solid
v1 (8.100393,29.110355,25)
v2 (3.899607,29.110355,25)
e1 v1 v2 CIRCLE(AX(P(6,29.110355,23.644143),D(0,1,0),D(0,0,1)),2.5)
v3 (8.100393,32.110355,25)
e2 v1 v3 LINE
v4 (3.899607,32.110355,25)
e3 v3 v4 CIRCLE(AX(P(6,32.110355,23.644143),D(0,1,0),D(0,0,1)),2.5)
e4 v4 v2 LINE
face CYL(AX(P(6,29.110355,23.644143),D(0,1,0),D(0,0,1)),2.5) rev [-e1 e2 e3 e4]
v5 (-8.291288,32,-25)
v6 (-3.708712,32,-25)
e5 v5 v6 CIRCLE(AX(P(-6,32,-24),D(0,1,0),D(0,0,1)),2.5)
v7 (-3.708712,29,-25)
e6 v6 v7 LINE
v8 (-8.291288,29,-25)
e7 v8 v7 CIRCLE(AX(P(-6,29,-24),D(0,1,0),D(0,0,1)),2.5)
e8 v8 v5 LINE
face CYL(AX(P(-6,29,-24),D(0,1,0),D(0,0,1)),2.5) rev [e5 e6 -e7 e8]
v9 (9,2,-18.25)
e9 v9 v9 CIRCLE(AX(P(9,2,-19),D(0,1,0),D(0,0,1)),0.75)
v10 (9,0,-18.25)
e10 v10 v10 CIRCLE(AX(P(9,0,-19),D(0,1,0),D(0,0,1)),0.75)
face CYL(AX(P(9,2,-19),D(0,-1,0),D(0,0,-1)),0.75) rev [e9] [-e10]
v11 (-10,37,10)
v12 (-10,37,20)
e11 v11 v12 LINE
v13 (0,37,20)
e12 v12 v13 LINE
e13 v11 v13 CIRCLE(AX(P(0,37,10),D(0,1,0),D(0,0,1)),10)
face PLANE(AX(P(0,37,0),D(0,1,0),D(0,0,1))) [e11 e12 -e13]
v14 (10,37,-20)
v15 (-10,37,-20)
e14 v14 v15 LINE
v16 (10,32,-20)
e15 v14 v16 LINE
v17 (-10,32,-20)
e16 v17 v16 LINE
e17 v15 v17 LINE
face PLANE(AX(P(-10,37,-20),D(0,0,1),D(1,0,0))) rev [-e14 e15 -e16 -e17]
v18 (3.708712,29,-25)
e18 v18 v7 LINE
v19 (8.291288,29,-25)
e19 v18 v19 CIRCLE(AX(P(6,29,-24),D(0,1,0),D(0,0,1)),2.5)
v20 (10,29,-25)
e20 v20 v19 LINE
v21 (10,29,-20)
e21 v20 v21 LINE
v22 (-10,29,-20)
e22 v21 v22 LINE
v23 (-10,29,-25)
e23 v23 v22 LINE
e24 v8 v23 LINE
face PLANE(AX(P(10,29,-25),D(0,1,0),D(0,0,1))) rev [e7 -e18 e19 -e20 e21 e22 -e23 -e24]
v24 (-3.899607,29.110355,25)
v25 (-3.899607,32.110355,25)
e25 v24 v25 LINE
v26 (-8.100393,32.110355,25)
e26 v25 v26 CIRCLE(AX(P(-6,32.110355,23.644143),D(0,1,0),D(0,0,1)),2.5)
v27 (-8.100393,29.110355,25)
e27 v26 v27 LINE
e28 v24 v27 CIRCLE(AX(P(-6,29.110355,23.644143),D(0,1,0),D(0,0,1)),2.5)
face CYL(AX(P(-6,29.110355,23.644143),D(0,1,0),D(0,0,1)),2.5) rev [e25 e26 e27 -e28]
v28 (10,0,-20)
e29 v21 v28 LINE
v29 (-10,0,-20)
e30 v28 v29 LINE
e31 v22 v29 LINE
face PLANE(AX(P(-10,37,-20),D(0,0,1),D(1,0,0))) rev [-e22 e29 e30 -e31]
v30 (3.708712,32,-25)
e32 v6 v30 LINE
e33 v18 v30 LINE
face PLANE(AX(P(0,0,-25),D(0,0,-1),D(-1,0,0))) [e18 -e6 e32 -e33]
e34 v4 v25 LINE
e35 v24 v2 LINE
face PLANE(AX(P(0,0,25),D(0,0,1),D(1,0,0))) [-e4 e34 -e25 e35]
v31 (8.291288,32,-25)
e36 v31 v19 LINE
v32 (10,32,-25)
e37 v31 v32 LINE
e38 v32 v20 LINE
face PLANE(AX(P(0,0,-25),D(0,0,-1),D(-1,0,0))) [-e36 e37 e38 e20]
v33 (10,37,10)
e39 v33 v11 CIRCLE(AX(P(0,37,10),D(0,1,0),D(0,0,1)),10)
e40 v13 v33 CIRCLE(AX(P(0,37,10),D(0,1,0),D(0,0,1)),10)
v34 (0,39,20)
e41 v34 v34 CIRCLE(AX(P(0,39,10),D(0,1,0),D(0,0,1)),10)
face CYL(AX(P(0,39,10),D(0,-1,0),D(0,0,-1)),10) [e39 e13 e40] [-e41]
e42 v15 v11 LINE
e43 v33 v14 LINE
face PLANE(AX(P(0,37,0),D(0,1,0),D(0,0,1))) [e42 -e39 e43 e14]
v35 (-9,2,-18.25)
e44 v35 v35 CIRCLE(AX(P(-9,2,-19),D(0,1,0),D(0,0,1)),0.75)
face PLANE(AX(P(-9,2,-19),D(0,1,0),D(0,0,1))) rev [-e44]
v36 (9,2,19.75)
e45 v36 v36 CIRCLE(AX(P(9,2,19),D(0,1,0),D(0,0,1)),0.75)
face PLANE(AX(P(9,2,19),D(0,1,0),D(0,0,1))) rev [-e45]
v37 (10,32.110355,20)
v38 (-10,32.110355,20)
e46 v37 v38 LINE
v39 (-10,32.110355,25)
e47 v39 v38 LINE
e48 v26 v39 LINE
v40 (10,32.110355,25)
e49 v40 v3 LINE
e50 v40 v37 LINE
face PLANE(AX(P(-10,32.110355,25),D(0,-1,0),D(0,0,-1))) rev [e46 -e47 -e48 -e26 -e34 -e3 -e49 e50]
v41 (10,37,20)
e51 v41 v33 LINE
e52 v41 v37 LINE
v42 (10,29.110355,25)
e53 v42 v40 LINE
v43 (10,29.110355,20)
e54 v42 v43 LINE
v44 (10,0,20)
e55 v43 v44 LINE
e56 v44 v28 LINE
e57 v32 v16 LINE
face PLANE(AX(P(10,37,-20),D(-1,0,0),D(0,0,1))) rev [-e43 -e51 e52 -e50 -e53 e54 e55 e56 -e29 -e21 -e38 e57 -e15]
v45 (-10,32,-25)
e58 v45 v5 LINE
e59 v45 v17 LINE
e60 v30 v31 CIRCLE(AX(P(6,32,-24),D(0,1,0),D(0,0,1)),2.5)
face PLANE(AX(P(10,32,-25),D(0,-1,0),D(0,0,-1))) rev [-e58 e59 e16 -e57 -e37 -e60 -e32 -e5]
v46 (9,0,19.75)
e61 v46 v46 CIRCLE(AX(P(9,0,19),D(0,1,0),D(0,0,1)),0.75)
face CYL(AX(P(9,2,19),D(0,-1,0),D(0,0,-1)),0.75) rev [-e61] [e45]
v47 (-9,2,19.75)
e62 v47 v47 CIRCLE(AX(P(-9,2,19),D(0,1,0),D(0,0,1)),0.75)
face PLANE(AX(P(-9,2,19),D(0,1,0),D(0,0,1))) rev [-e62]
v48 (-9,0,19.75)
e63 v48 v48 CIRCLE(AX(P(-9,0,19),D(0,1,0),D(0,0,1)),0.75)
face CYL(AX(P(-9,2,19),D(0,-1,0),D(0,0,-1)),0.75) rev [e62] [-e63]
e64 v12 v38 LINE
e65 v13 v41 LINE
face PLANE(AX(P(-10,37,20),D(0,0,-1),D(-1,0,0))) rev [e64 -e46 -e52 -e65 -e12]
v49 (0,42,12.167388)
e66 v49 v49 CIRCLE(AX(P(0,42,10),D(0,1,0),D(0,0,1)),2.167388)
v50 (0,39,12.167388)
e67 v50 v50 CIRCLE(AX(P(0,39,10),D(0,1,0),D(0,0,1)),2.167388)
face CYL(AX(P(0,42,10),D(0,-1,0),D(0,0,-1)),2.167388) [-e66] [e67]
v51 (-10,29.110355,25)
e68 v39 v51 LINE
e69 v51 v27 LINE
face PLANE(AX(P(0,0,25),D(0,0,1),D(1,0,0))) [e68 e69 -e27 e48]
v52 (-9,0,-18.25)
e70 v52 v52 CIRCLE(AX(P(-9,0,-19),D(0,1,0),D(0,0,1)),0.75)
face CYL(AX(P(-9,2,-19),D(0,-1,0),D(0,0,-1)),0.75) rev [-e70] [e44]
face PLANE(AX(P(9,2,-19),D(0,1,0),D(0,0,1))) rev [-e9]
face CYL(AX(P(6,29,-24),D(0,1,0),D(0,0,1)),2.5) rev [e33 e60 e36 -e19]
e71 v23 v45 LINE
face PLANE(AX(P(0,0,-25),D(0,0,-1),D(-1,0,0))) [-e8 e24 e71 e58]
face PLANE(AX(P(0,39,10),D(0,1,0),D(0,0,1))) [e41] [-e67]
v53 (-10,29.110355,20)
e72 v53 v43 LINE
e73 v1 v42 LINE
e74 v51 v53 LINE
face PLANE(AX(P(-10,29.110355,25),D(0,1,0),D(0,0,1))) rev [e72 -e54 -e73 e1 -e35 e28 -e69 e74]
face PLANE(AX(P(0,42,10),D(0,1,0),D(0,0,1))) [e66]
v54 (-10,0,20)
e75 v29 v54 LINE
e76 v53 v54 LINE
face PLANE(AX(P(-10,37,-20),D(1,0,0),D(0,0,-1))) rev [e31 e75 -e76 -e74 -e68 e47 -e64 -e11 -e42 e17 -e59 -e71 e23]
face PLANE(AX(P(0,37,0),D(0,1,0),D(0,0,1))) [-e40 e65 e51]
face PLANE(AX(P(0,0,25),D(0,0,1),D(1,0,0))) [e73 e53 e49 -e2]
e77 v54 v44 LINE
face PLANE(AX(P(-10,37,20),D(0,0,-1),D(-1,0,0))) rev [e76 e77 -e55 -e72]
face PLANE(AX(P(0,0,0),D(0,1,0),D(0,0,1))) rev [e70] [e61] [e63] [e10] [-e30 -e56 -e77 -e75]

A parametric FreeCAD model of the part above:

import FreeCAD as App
import Part
import Sketcher
from FreeCAD import Vector

doc = App.newDocument("Part")
body = doc.addObject("PartDesign::Body", "Body")

# Sketch on XZ plane
sketch1 = doc.addObject("Sketcher::SketchObject", "Sketch")
body.addObject(sketch1)
sketch1.AttachmentSupport = (doc.XZ_Plane, [""])
sketch1.MapMode = "FlatFace"
sketch1.addGeometry(Part.LineSegment(Vector(-10, -20, 0), Vector(-10, 20, 0)), False)
sketch1.addGeometry(Part.LineSegment(Vector(-10, 20, 0), Vector(10, 20, 0)), False)
sketch1.addGeometry(Part.LineSegment(Vector(10, 20, 0), Vector(10, -20, 0)), False)
sketch1.addGeometry(Part.LineSegment(Vector(10, -20, 0), Vector(-10, -20, 0)), False)
sketch1.addConstraint(Sketcher.Constraint("Coincident", 0, 2, 1, 1))
sketch1.addConstraint(Sketcher.Constraint("Coincident", 1, 2, 2, 1))
sketch1.addConstraint(Sketcher.Constraint("Coincident", 2, 2, 3, 1))
sketch1.addConstraint(Sketcher.Constraint("Coincident", 3, 2, 0, 1))
sketch1.addConstraint(Sketcher.Constraint("Vertical", 0))
sketch1.addConstraint(Sketcher.Constraint("Horizontal", 1))
sketch1.addConstraint(Sketcher.Constraint("Vertical", 2))
sketch1.addConstraint(Sketcher.Constraint("Horizontal", 3))
sketch1.addConstraint(Sketcher.Constraint("Symmetric", 0, 2, 2, 2, -1, 1))
sketch1.addConstraint(Sketcher.Constraint("DistanceX", 1, 1, 1, 2, 20.0))
sketch1.addConstraint(Sketcher.Constraint("DistanceY", 0, 1, 0, 2, 40.0))
pad1 = doc.addObject("PartDesign::Pad", "Pad")
body.addObject(pad1)
pad1.Profile = sketch1
pad1.Length = 37
pad1.Reversed = True

# Sketch on XZ plane
sketch2 = doc.addObject("Sketcher::SketchObject", "Sketch001")
body.addObject(sketch2)
sketch2.AttachmentSupport = (doc.XZ_Plane, [""])
sketch2.MapMode = "FlatFace"
sketch2.addGeometry(Part.Circle(Vector(-9, -19, 0), Vector(0, 0, 1), 0.8), False)
sketch2.addGeometry(Part.Circle(Vector(9, -19, 0), Vector(0, 0, 1), 0.8), False)
sketch2.addGeometry(Part.Circle(Vector(-9, 19, 0), Vector(0, 0, 1), 0.8), False)
sketch2.addGeometry(Part.Circle(Vector(9, 19, 0), Vector(0, 0, 1), 0.8), False)
sketch2.addConstraint(Sketcher.Constraint("Equal", 0, 1))
sketch2.addConstraint(Sketcher.Constraint("Equal", 1, 2))
sketch2.addConstraint(Sketcher.Constraint("Equal", 2, 3))
sketch2.addConstraint(Sketcher.Constraint("Symmetric", 1, 3, 2, 3, -1, 1))
sketch2.addConstraint(Sketcher.Constraint("Symmetric", 0, 3, 3, 3, -1, 1))
sketch2.addConstraint(Sketcher.Constraint("Symmetric", 0, 3, 1, 3, -2))
sketch2.addConstraint(Sketcher.Constraint("Diameter", 0, 1.5))
sketch2.addConstraint(Sketcher.Constraint("DistanceX", 0, 3, -1, 1, 9.0))
sketch2.addConstraint(Sketcher.Constraint("DistanceY", 0, 3, -1, 1, 19.0))
pocket1 = doc.addObject("PartDesign::Pocket", "Pocket")
body.addObject(pocket1)
pocket1.Profile = sketch2
pocket1.Length = 2

# Sketch on XZ plane
sketch3 = doc.addObject("Sketcher::SketchObject", "Sketch002")
body.addObject(sketch3)
sketch3.AttachmentSupport = (doc.XZ_Plane, [""])
sketch3.MapMode = "FlatFace"
sketch3.AttachmentOffset = App.Placement(Vector(0, 0, -37), App.Rotation())
sketch3.addGeometry(Part.Circle(Vector(0, 10, 0), Vector(0, 0, 1), 10), False)
sketch3.addConstraint(Sketcher.Constraint("PointOnObject", 0, 3, -2))
sketch3.addConstraint(Sketcher.Constraint("Diameter", 0, 20.0))
sketch3.addConstraint(Sketcher.Constraint("DistanceY", -1, 1, 0, 3, 10.0))
pad2 = doc.addObject("PartDesign::Pad", "Pad001")
body.addObject(pad2)
pad2.Profile = sketch3
pad2.Length = 2
pad2.Reversed = True

# Sketch on XZ plane
sketch4 = doc.addObject("Sketcher::SketchObject", "Sketch003")
body.addObject(sketch4)
sketch4.AttachmentSupport = (doc.XZ_Plane, [""])
sketch4.MapMode = "FlatFace"
sketch4.AttachmentOffset = App.Placement(Vector(0, 0, -39), App.Rotation())
sketch4.addGeometry(Part.Circle(Vector(0, 10, 0), Vector(0, 0, 1), 2.2), False)
sketch4.addConstraint(Sketcher.Constraint("PointOnObject", 0, 3, -2))
sketch4.addConstraint(Sketcher.Constraint("DistanceY", -1, 1, 0, 3, 10.0))
sketch4.addConstraint(Sketcher.Constraint("Diameter", 0, 4.334777))
pad3 = doc.addObject("PartDesign::Pad", "Pad002")
body.addObject(pad3)
pad3.Profile = sketch4
pad3.Length = 3
pad3.Reversed = True

# Sketch on XY plane
sketch5 = doc.addObject("Sketcher::SketchObject", "Sketch004")
body.addObject(sketch5)
sketch5.AttachmentSupport = (doc.XY_Plane, [""])
sketch5.MapMode = "FlatFace"
sketch5.AttachmentOffset = App.Placement(Vector(0, 0, 20), App.Rotation())
sketch5.addGeometry(Part.LineSegment(Vector(-10, 32.1, 0), Vector(-10, 29.1, 0)), False)
sketch5.addGeometry(Part.LineSegment(Vector(-10, 29.1, 0), Vector(10, 29.1, 0)), False)
sketch5.addGeometry(Part.LineSegment(Vector(10, 29.1, 0), Vector(10, 32.1, 0)), False)
sketch5.addGeometry(Part.LineSegment(Vector(10, 32.1, 0), Vector(-10, 32.1, 0)), False)
sketch5.addConstraint(Sketcher.Constraint("Coincident", 0, 2, 1, 1))
sketch5.addConstraint(Sketcher.Constraint("Coincident", 1, 2, 2, 1))
sketch5.addConstraint(Sketcher.Constraint("Coincident", 2, 2, 3, 1))
sketch5.addConstraint(Sketcher.Constraint("Coincident", 3, 2, 0, 1))
sketch5.addConstraint(Sketcher.Constraint("Vertical", 0))
sketch5.addConstraint(Sketcher.Constraint("Horizontal", 1))
sketch5.addConstraint(Sketcher.Constraint("Vertical", 2))
sketch5.addConstraint(Sketcher.Constraint("Horizontal", 3))
sketch5.addConstraint(Sketcher.Constraint("DistanceX", 1, 1, 1, 2, 20.0))
sketch5.addConstraint(Sketcher.Constraint("DistanceY", 0, 2, 0, 1, 3.0))
sketch5.addConstraint(Sketcher.Constraint("DistanceX", 0, 2, -1, 1, 10.0))
sketch5.addConstraint(Sketcher.Constraint("DistanceY", -1, 1, 0, 2, 29.110355))
pad4 = doc.addObject("PartDesign::Pad", "Pad003")
body.addObject(pad4)
pad4.Profile = sketch5
pad4.Length = 5

# Sketch on XZ plane
sketch6 = doc.addObject("Sketcher::SketchObject", "Sketch005")
body.addObject(sketch6)
sketch6.AttachmentSupport = (doc.XZ_Plane, [""])
sketch6.MapMode = "FlatFace"
sketch6.AttachmentOffset = App.Placement(Vector(0, 0, -32.110355), App.Rotation())
sketch6.addGeometry(Part.Circle(Vector(-6, 23.6, 0), Vector(0, 0, 1), 2.5), False)
sketch6.addGeometry(Part.Circle(Vector(6, 23.6, 0), Vector(0, 0, 1), 2.5), False)
sketch6.addConstraint(Sketcher.Constraint("Equal", 0, 1))
sketch6.addConstraint(Sketcher.Constraint("Symmetric", 0, 3, 1, 3, -2))
sketch6.addConstraint(Sketcher.Constraint("Diameter", 0, 5.0))
sketch6.addConstraint(Sketcher.Constraint("DistanceX", 0, 3, -1, 1, 6.0))
sketch6.addConstraint(Sketcher.Constraint("DistanceY", -1, 1, 0, 3, 23.644143))
pocket2 = doc.addObject("PartDesign::Pocket", "Pocket001")
body.addObject(pocket2)
pocket2.Profile = sketch6
pocket2.Length = 3
pocket2.Reversed = True

# Sketch on XY plane
sketch7 = doc.addObject("Sketcher::SketchObject", "Sketch006")
body.addObject(sketch7)
sketch7.AttachmentSupport = (doc.XY_Plane, [""])
sketch7.MapMode = "FlatFace"
sketch7.AttachmentOffset = App.Placement(Vector(0, 0, -20), App.Rotation())
sketch7.addGeometry(Part.LineSegment(Vector(10, 32, 0), Vector(10, 29, 0)), False)
sketch7.addGeometry(Part.LineSegment(Vector(10, 29, 0), Vector(-10, 29, 0)), False)
sketch7.addGeometry(Part.LineSegment(Vector(-10, 29, 0), Vector(-10, 32, 0)), False)
sketch7.addGeometry(Part.LineSegment(Vector(-10, 32, 0), Vector(10, 32, 0)), False)
sketch7.addConstraint(Sketcher.Constraint("Coincident", 0, 2, 1, 1))
sketch7.addConstraint(Sketcher.Constraint("Coincident", 1, 2, 2, 1))
sketch7.addConstraint(Sketcher.Constraint("Coincident", 2, 2, 3, 1))
sketch7.addConstraint(Sketcher.Constraint("Coincident", 3, 2, 0, 1))
sketch7.addConstraint(Sketcher.Constraint("Vertical", 0))
sketch7.addConstraint(Sketcher.Constraint("Horizontal", 1))
sketch7.addConstraint(Sketcher.Constraint("Vertical", 2))
sketch7.addConstraint(Sketcher.Constraint("Horizontal", 3))
sketch7.addConstraint(Sketcher.Constraint("DistanceX", 1, 2, 1, 1, 20.0))
sketch7.addConstraint(Sketcher.Constraint("DistanceY", 0, 2, 0, 1, 3.0))
sketch7.addConstraint(Sketcher.Constraint("DistanceX", -1, 1, 0, 2, 10.0))
sketch7.addConstraint(Sketcher.Constraint("DistanceY", -1, 1, 0, 2, 29.0))
pad5 = doc.addObject("PartDesign::Pad", "Pad004")
body.addObject(pad5)
pad5.Profile = sketch7
pad5.Length = 5
pad5.Reversed = True

# Sketch on XZ plane
sketch8 = doc.addObject("Sketcher::SketchObject", "Sketch007")
body.addObject(sketch8)
sketch8.AttachmentSupport = (doc.XZ_Plane, [""])
sketch8.MapMode = "FlatFace"
sketch8.AttachmentOffset = App.Placement(Vector(0, 0, -32), App.Rotation())
sketch8.addGeometry(Part.Circle(Vector(-6, -24, 0), Vector(0, 0, 1), 2.5), False)
sketch8.addGeometry(Part.Circle(Vector(6, -24, 0), Vector(0, 0, 1), 2.5), False)
sketch8.addConstraint(Sketcher.Constraint("Equal", 0, 1))
sketch8.addConstraint(Sketcher.Constraint("Symmetric", 0, 3, 1, 3, -2))
sketch8.addConstraint(Sketcher.Constraint("Diameter", 0, 5.0))
sketch8.addConstraint(Sketcher.Constraint("DistanceX", 0, 3, -1, 1, 6.0))
sketch8.addConstraint(Sketcher.Constraint("DistanceY", 0, 3, -1, 1, 24.0))
pocket3 = doc.addObject("PartDesign::Pocket", "Pocket002")
body.addObject(pocket3)
pocket3.Profile = sketch8
pocket3.Length = 3
pocket3.Reversed = True

doc.recompute()
